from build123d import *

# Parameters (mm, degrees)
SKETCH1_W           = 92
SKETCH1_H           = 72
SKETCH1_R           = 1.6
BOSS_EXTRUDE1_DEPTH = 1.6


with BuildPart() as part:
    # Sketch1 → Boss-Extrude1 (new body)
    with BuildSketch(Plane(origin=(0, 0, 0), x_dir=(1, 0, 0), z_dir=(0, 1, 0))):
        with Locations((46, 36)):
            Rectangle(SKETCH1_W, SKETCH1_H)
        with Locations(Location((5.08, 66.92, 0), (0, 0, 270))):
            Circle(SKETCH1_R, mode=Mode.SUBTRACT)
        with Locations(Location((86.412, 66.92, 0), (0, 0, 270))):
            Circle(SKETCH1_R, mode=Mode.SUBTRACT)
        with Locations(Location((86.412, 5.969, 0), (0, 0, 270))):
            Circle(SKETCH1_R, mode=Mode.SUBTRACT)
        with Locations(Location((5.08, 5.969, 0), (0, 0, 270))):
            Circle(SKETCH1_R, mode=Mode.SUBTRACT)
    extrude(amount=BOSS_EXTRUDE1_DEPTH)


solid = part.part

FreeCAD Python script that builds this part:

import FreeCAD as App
import Part
import Sketcher
from FreeCAD import Vector

doc = App.newDocument("Part")
params = doc.addObject("Spreadsheet::Sheet", "Params")
for row, (alias, value) in enumerate([
    ("sketch1_diameter", "3.2 mm"),
    ("sketch1_width", "92 mm"),
    ("sketch1_height", "72 mm"),
    ("pad1_length", "1.6 mm"),
], start=1):
    params.set(f"A{row}", alias)
    params.set(f"B{row}", "=" + value)
    params.setAlias(f"B{row}", alias)

body = doc.addObject("PartDesign::Body", "Body")

# Sketch on XZ plane
sketch1 = body.newObject("Sketcher::SketchObject", "Sketch")
sketch1.AttachmentSupport = (doc.getObject("XZ_Plane"), [""])
sketch1.MapMode = "FlatFace"
sketch1.addGeometry([
    Part.LineSegment(Vector(0, -72, 0), Vector(0, 0, 0)),  # 0
    Part.LineSegment(Vector(0, 0, 0), Vector(92, 0, 0)),  # 1
    Part.LineSegment(Vector(92, 0, 0), Vector(92, -72, 0)),  # 2
    Part.LineSegment(Vector(92, -72, 0), Vector(0, -72, 0)),  # 3
    Part.Circle(Vector(5.1, -6, 0), Vector(0, 0, 1), 1.6),  # 4
    Part.Circle(Vector(86.4, -6, 0), Vector(0, 0, 1), 1.6),  # 5
    Part.Circle(Vector(5.1, -66.9, 0), Vector(0, 0, 1), 1.6),  # 6
    Part.Circle(Vector(86.4, -66.9, 0), Vector(0, 0, 1), 1.6),  # 7
], False)
sketch1.addConstraint([
    Sketcher.Constraint("Coincident", 0, 2, 1, 1),
    Sketcher.Constraint("Coincident", 1, 2, 2, 1),
    Sketcher.Constraint("Coincident", 2, 2, 3, 1),
    Sketcher.Constraint("Coincident", 3, 2, 0, 1),
    Sketcher.Constraint("Vertical", 0),
    Sketcher.Constraint("Horizontal", 1),
    Sketcher.Constraint("Vertical", 2),
    Sketcher.Constraint("Horizontal", 3),
    Sketcher.Constraint("Coincident", 0, 2, -1, 1),
    Sketcher.Constraint("Equal", 4, 5),
    Sketcher.Constraint("Equal", 5, 6),
    Sketcher.Constraint("Equal", 6, 7),
    Sketcher.Constraint("Horizontal", 4, 3, 5, 3),
    Sketcher.Constraint("Horizontal", 6, 3, 7, 3),
    Sketcher.Constraint("Vertical", 4, 3, 6, 3),
    Sketcher.Constraint("Vertical", 5, 3, 7, 3),
    Sketcher.Constraint("Diameter", 4, 3.2),
    Sketcher.Constraint("DistanceX", 1, 1, 1, 2, 92.0),
    Sketcher.Constraint("DistanceY", 0, 1, 0, 2, 72.0),
    Sketcher.Constraint("DistanceX", -1, 1, 4, 3, 5.08),
    Sketcher.Constraint("DistanceY", 6, 3, -1, 1, 66.92),
    Sketcher.Constraint("DistanceY", 4, 3, -1, 1, 5.969),
    Sketcher.Constraint("DistanceX", -1, 1, 5, 3, 86.412),
])
sketch1.setExpression("Constraints[16]", "Params.sketch1_diameter")
sketch1.setExpression("Constraints[17]", "Params.sketch1_width")
sketch1.setExpression("Constraints[18]", "Params.sketch1_height")
pad1 = body.newObject("PartDesign::Pad", "Pad")
pad1.Profile = sketch1
pad1.setExpression("Length", "Params.pad1_length")
pad1.Reversed = True

doc.recompute()
